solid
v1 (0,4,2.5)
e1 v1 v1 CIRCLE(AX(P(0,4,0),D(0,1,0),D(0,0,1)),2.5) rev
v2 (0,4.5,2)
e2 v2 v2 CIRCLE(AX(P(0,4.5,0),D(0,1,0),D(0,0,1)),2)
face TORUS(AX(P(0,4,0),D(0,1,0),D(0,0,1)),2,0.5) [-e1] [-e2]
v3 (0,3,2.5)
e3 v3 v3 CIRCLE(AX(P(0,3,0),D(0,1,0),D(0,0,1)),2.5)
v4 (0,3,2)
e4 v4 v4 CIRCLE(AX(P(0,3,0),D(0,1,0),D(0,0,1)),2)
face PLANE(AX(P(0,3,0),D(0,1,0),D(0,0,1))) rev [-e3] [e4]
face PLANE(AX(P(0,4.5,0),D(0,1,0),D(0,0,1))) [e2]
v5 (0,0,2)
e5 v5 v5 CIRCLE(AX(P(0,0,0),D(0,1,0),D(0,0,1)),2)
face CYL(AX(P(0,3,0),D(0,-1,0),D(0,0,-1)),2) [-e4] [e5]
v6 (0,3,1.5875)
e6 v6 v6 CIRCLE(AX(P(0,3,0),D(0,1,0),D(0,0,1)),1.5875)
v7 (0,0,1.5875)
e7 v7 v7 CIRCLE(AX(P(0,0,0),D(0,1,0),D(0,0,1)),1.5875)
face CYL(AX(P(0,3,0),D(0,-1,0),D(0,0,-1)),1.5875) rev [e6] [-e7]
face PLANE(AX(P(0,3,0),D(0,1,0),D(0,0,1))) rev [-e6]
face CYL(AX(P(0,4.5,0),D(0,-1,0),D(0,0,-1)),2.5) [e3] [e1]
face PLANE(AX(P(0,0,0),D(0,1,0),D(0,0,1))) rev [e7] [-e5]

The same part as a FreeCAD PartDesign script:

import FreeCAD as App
import Part
import Sketcher


def edges_at(feature, points):
    """Names of the edges that pass closest to the given points."""
    edges = feature.Shape.Edges
    near = lambda p: min(range(len(edges)), key=lambda i: edges[i].distToShape(Part.Vertex(*p))[0])
    return sorted({f"Edge{near(p) + 1}" for p in points})

doc = App.newDocument("Part")
params = doc.addObject("Spreadsheet::Sheet", "Params")
for row, (alias, value) in enumerate([
    ("sketch1_diameter", "4 mm"),
    ("pad1_length", "3 mm"),
    ("sketch2_diameter", "5 mm"),
    ("pad2_length", "1.5 mm"),
    ("fillet_radius", "0.5 mm"),
], start=1):
    params.set(f"A{row}", alias)
    params.set(f"B{row}", "=" + value)
    params.setAlias(f"B{row}", alias)

body = doc.addObject("PartDesign::Body", "Body")

# Sketch on XZ plane
sketch1 = doc.addObject("Sketcher::SketchObject", "Sketch")
body.addObject(sketch1)
sketch1.AttachmentSupport = (doc.XZ_Plane, [""])
sketch1.MapMode = "FlatFace"
sketch1.addGeometry([
    Part.Circle(App.Vector(0, 0, 0), App.Vector(0, 0, 1), 2),
    Part.Circle(App.Vector(0, 0, 0), App.Vector(0, 0, 1), 1.5875),
], False)
sketch1.addConstraint([
    Sketcher.Constraint("Coincident", 0, 3, -1, 1),
    Sketcher.Constraint("Coincident", 1, 3, -1, 1),
    Sketcher.Constraint("Diameter", 0, 4.0),
    Sketcher.Constraint("Diameter", 1, 3.175),
])
sketch1.setExpression("Constraints[2]", "Params.sketch1_diameter")
pad1 = doc.addObject("PartDesign::Pad", "Pad")
body.addObject(pad1)
pad1.Profile = sketch1
pad1.setExpression("Length", "Params.pad1_length")
pad1.Reversed = True

# Sketch on XZ plane
sketch2 = doc.addObject("Sketcher::SketchObject", "Sketch001")
body.addObject(sketch2)
sketch2.AttachmentSupport = (doc.XZ_Plane, [""])
sketch2.MapMode = "FlatFace"
sketch2.AttachmentOffset = App.Placement(App.Vector(0, 0, -3), App.Rotation())
sketch2.addGeometry(Part.Circle(App.Vector(0, 0, 0), App.Vector(0, 0, 1), 2.5), False)
sketch2.addConstraint([
    Sketcher.Constraint("Coincident", 0, 3, -1, 1),
    Sketcher.Constraint("Diameter", 0, 5.0),
])
sketch2.setExpression("Constraints[1]", "Params.sketch2_diameter")
pad2 = doc.addObject("PartDesign::Pad", "Pad001")
body.addObject(pad2)
pad2.Profile = sketch2
pad2.setExpression("Length", "Params.pad2_length")
pad2.Reversed = True
doc.recompute()

fillet = doc.addObject("PartDesign::Fillet", "Fillet")
body.addObject(fillet)
fillet.Base = (pad2, edges_at(pad2, [(0, 4.5, -2.5)]))
fillet.setExpression("Radius", "Params.fillet_radius")

doc.recompute()
